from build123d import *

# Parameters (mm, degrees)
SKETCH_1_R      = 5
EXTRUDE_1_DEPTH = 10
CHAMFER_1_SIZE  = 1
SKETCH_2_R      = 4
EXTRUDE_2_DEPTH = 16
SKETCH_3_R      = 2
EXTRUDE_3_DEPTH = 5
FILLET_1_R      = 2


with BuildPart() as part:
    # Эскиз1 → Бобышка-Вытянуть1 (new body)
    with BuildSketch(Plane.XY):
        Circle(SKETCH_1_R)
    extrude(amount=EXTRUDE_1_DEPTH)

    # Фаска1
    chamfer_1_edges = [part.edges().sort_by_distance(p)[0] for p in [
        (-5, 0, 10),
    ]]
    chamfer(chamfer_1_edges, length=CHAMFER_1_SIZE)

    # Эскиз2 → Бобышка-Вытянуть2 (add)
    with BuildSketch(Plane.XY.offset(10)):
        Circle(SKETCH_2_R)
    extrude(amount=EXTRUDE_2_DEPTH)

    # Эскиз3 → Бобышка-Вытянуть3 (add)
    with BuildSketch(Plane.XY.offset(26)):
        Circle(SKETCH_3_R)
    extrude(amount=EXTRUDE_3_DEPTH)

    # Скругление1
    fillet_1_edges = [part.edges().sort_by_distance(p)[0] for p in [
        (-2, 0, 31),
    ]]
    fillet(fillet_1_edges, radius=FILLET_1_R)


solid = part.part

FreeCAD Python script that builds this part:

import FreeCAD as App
import Part
import Sketcher
from FreeCAD import Vector
Q = App.Units.Quantity


def edges_at(feature, points):
    """Names of the edges that pass closest to the given points."""
    edges = feature.Shape.Edges
    near = lambda p: min(range(len(edges)), key=lambda i: edges[i].distToShape(Part.Vertex(*p))[0])
    return sorted({f"Edge{near(p) + 1}" for p in points})

doc = App.newDocument("Part")
body = doc.addObject("PartDesign::Body", "Body")

# Sketch on XY plane
sketch1 = body.newObject("Sketcher::SketchObject", "Sketch")
sketch1.AttachmentSupport = (doc.getObject("XY_Plane"), [""])
sketch1.MapMode = "FlatFace"
sketch1.addGeometry(Part.Circle(Vector(0, 0, 0), Vector(0, 0, 1), 5), False)
sketch1.addConstraint(Sketcher.Constraint("Coincident", 0, 3, -1, 1))
sketch1.addConstraint(Sketcher.Constraint("Diameter", 0, Q("10 mm")))
pad1 = body.newObject("PartDesign::Pad", "Pad")
pad1.Profile = sketch1
pad1.Length = 10
doc.recompute()

chamfer = body.newObject("PartDesign::Chamfer", "Chamfer")
chamfer.Base = (pad1, edges_at(pad1, [(-5, 0, 10)]))
chamfer.Size = 1

# Sketch on XY plane
sketch2 = body.newObject("Sketcher::SketchObject", "Sketch001")
sketch2.AttachmentSupport = (doc.getObject("XY_Plane"), [""])
sketch2.MapMode = "FlatFace"
sketch2.AttachmentOffset = App.Placement(Vector(0, 0, 10), App.Rotation())
sketch2.addGeometry(Part.Circle(Vector(0, 0, 0), Vector(0, 0, 1), 4), False)
sketch2.addConstraint(Sketcher.Constraint("Coincident", 0, 3, -1, 1))
sketch2.addConstraint(Sketcher.Constraint("Diameter", 0, Q("8 mm")))
pad2 = body.newObject("PartDesign::Pad", "Pad001")
pad2.Profile = sketch2
pad2.Length = 16

# Sketch on XY plane
sketch3 = body.newObject("Sketcher::SketchObject", "Sketch002")
sketch3.AttachmentSupport = (doc.getObject("XY_Plane"), [""])
sketch3.MapMode = "FlatFace"
sketch3.AttachmentOffset = App.Placement(Vector(0, 0, 26), App.Rotation())
sketch3.addGeometry(Part.Circle(Vector(0, 0, 0), Vector(0, 0, 1), 2), False)
sketch3.addConstraint(Sketcher.Constraint("Coincident", 0, 3, -1, 1))
sketch3.addConstraint(Sketcher.Constraint("Diameter", 0, Q("4 mm")))
pad3 = body.newObject("PartDesign::Pad", "Pad002")
pad3.Profile = sketch3
pad3.Length = 5
doc.recompute()

fillet = body.newObject("PartDesign::Fillet", "Fillet")
fillet.Base = (pad3, edges_at(pad3, [(-2, 0, 31)]))
fillet.Radius = 2

doc.recompute()
